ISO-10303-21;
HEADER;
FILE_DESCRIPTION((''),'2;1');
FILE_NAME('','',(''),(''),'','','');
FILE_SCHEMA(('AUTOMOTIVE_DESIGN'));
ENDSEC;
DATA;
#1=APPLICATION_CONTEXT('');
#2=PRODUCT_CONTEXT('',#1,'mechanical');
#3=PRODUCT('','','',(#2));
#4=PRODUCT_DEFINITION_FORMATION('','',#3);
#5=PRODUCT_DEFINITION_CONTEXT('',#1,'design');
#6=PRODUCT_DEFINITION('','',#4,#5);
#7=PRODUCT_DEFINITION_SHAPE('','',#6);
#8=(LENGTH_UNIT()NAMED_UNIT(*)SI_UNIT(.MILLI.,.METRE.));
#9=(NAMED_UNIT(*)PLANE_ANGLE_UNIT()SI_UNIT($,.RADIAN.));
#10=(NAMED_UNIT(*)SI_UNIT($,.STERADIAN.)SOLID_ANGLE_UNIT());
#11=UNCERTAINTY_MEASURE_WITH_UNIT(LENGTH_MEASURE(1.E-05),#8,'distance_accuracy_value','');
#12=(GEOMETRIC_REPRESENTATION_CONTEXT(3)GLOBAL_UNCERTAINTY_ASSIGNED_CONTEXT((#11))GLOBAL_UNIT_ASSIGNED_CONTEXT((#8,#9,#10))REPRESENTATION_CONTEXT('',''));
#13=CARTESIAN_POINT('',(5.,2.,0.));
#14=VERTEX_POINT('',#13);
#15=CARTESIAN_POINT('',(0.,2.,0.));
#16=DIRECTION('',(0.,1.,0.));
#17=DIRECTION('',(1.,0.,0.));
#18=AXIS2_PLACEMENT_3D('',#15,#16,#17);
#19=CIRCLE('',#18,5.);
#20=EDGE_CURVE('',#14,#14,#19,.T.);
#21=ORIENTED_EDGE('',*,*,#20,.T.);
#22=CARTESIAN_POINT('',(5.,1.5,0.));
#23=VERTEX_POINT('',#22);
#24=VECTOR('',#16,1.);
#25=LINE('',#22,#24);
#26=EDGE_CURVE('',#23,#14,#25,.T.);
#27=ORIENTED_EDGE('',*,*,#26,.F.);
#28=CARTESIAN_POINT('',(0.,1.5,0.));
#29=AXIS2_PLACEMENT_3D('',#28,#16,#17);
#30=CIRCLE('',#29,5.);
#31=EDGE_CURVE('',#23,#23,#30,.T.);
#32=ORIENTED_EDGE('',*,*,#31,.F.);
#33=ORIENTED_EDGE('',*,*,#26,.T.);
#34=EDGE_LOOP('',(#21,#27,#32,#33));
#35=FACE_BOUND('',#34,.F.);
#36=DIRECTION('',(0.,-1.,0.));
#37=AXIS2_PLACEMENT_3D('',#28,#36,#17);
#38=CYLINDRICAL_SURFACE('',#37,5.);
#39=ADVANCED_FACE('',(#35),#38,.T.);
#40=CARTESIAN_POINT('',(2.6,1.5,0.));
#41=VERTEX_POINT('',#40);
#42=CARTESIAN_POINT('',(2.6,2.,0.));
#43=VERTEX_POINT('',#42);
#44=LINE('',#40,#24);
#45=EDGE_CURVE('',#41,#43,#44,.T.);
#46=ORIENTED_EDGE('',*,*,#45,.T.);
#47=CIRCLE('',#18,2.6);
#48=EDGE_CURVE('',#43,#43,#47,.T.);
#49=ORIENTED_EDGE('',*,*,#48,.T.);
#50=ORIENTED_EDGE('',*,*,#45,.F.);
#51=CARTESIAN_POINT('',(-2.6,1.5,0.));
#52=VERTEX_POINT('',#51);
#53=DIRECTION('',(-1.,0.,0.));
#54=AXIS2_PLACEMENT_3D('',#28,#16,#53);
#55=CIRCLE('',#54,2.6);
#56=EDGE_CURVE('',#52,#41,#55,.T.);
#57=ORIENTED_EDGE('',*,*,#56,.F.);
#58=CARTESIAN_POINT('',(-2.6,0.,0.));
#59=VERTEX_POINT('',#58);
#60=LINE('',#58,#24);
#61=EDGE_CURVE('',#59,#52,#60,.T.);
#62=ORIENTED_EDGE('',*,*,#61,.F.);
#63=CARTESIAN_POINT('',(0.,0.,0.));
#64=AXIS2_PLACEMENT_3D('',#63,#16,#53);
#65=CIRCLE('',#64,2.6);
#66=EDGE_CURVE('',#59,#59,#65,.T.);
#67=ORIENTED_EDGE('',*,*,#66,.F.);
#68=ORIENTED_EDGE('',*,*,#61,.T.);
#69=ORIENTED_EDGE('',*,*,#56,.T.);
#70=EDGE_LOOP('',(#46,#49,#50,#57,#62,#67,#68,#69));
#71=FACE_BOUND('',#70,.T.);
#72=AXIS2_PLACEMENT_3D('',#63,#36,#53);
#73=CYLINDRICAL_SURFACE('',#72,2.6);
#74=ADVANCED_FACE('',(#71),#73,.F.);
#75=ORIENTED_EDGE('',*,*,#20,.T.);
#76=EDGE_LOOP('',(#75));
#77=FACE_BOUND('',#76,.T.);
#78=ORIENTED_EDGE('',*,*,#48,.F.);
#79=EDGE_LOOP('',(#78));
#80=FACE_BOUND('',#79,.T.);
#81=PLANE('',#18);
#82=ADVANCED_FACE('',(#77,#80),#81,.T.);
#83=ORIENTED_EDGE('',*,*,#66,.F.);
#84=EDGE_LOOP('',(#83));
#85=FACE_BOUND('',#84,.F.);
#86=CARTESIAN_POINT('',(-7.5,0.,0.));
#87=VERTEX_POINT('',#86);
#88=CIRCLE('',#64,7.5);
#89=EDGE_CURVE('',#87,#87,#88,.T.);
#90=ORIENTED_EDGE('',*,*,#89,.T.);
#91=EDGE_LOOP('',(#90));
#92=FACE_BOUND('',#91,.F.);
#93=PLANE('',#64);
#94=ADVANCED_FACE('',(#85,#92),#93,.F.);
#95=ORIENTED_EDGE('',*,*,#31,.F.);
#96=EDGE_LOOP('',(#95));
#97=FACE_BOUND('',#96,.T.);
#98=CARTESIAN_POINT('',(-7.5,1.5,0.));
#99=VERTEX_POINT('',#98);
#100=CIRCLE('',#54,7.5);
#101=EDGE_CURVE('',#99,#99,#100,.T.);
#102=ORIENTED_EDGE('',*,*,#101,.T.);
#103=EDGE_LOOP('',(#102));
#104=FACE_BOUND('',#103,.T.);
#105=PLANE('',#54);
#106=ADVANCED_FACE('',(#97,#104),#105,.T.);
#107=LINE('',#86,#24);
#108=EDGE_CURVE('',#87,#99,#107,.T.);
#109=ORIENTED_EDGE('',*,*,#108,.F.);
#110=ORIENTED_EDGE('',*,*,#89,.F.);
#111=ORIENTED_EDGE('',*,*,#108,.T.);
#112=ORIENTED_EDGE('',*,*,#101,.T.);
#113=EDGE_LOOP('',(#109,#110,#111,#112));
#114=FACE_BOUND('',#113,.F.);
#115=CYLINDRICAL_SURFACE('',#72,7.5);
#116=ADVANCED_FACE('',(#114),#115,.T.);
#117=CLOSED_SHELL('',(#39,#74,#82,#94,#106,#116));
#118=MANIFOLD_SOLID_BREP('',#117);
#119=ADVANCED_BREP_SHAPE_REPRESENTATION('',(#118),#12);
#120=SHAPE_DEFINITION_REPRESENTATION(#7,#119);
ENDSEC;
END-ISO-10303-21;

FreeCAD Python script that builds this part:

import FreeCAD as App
import Part
import Sketcher

doc = App.newDocument("Part")
body = doc.addObject("PartDesign::Body", "Body")

sketch1 = body.newObject("Sketcher::SketchObject", "Sketch")
sketch1.AttachmentSupport = (doc.getObject("XZ_Plane"), [""])
sketch1.MapMode = "FlatFace"
sketch1.addGeometry(Part.Circle(App.Vector(0, 0, 0), App.Vector(0, 0, 1), 7.5), False)
sketch1.addGeometry(Part.Circle(App.Vector(0, 0, 0), App.Vector(0, 0, 1), 2.6), False)
sketch1.addConstraint(Sketcher.Constraint("Coincident", 0, 3, -1, 1))
sketch1.addConstraint(Sketcher.Constraint("Coincident", 1, 3, -1, 1))
sketch1.addConstraint(Sketcher.Constraint("Diameter", 0, 15.0))
sketch1.addConstraint(Sketcher.Constraint("Diameter", 1, 5.2))
pad1 = body.newObject("PartDesign::Pad", "Pad")
pad1.Profile = sketch1
pad1.Length = 1.5
pad1.Reversed = True

sketch2 = body.newObject("Sketcher::SketchObject", "Sketch001")
sketch2.AttachmentSupport = (doc.getObject("XZ_Plane"), [""])
sketch2.MapMode = "FlatFace"
sketch2.AttachmentOffset = App.Placement(App.Vector(0, 0, -1.5), App.Rotation())
sketch2.addGeometry(Part.Circle(App.Vector(0, 0, 0), App.Vector(0, 0, 1), 5), False)
sketch2.addGeometry(Part.Circle(App.Vector(0, 0, 0), App.Vector(0, 0, 1), 2.6), False)
sketch2.addConstraint(Sketcher.Constraint("Coincident", 0, 3, -1, 1))
sketch2.addConstraint(Sketcher.Constraint("Coincident", 1, 3, -1, 1))
sketch2.addConstraint(Sketcher.Constraint("Diameter", 0, 10.0))
sketch2.addConstraint(Sketcher.Constraint("Diameter", 1, 5.2))
pad2 = body.newObject("PartDesign::Pad", "Pad001")
pad2.Profile = sketch2
pad2.Length = 0.5
pad2.Reversed = True

doc.recompute()
